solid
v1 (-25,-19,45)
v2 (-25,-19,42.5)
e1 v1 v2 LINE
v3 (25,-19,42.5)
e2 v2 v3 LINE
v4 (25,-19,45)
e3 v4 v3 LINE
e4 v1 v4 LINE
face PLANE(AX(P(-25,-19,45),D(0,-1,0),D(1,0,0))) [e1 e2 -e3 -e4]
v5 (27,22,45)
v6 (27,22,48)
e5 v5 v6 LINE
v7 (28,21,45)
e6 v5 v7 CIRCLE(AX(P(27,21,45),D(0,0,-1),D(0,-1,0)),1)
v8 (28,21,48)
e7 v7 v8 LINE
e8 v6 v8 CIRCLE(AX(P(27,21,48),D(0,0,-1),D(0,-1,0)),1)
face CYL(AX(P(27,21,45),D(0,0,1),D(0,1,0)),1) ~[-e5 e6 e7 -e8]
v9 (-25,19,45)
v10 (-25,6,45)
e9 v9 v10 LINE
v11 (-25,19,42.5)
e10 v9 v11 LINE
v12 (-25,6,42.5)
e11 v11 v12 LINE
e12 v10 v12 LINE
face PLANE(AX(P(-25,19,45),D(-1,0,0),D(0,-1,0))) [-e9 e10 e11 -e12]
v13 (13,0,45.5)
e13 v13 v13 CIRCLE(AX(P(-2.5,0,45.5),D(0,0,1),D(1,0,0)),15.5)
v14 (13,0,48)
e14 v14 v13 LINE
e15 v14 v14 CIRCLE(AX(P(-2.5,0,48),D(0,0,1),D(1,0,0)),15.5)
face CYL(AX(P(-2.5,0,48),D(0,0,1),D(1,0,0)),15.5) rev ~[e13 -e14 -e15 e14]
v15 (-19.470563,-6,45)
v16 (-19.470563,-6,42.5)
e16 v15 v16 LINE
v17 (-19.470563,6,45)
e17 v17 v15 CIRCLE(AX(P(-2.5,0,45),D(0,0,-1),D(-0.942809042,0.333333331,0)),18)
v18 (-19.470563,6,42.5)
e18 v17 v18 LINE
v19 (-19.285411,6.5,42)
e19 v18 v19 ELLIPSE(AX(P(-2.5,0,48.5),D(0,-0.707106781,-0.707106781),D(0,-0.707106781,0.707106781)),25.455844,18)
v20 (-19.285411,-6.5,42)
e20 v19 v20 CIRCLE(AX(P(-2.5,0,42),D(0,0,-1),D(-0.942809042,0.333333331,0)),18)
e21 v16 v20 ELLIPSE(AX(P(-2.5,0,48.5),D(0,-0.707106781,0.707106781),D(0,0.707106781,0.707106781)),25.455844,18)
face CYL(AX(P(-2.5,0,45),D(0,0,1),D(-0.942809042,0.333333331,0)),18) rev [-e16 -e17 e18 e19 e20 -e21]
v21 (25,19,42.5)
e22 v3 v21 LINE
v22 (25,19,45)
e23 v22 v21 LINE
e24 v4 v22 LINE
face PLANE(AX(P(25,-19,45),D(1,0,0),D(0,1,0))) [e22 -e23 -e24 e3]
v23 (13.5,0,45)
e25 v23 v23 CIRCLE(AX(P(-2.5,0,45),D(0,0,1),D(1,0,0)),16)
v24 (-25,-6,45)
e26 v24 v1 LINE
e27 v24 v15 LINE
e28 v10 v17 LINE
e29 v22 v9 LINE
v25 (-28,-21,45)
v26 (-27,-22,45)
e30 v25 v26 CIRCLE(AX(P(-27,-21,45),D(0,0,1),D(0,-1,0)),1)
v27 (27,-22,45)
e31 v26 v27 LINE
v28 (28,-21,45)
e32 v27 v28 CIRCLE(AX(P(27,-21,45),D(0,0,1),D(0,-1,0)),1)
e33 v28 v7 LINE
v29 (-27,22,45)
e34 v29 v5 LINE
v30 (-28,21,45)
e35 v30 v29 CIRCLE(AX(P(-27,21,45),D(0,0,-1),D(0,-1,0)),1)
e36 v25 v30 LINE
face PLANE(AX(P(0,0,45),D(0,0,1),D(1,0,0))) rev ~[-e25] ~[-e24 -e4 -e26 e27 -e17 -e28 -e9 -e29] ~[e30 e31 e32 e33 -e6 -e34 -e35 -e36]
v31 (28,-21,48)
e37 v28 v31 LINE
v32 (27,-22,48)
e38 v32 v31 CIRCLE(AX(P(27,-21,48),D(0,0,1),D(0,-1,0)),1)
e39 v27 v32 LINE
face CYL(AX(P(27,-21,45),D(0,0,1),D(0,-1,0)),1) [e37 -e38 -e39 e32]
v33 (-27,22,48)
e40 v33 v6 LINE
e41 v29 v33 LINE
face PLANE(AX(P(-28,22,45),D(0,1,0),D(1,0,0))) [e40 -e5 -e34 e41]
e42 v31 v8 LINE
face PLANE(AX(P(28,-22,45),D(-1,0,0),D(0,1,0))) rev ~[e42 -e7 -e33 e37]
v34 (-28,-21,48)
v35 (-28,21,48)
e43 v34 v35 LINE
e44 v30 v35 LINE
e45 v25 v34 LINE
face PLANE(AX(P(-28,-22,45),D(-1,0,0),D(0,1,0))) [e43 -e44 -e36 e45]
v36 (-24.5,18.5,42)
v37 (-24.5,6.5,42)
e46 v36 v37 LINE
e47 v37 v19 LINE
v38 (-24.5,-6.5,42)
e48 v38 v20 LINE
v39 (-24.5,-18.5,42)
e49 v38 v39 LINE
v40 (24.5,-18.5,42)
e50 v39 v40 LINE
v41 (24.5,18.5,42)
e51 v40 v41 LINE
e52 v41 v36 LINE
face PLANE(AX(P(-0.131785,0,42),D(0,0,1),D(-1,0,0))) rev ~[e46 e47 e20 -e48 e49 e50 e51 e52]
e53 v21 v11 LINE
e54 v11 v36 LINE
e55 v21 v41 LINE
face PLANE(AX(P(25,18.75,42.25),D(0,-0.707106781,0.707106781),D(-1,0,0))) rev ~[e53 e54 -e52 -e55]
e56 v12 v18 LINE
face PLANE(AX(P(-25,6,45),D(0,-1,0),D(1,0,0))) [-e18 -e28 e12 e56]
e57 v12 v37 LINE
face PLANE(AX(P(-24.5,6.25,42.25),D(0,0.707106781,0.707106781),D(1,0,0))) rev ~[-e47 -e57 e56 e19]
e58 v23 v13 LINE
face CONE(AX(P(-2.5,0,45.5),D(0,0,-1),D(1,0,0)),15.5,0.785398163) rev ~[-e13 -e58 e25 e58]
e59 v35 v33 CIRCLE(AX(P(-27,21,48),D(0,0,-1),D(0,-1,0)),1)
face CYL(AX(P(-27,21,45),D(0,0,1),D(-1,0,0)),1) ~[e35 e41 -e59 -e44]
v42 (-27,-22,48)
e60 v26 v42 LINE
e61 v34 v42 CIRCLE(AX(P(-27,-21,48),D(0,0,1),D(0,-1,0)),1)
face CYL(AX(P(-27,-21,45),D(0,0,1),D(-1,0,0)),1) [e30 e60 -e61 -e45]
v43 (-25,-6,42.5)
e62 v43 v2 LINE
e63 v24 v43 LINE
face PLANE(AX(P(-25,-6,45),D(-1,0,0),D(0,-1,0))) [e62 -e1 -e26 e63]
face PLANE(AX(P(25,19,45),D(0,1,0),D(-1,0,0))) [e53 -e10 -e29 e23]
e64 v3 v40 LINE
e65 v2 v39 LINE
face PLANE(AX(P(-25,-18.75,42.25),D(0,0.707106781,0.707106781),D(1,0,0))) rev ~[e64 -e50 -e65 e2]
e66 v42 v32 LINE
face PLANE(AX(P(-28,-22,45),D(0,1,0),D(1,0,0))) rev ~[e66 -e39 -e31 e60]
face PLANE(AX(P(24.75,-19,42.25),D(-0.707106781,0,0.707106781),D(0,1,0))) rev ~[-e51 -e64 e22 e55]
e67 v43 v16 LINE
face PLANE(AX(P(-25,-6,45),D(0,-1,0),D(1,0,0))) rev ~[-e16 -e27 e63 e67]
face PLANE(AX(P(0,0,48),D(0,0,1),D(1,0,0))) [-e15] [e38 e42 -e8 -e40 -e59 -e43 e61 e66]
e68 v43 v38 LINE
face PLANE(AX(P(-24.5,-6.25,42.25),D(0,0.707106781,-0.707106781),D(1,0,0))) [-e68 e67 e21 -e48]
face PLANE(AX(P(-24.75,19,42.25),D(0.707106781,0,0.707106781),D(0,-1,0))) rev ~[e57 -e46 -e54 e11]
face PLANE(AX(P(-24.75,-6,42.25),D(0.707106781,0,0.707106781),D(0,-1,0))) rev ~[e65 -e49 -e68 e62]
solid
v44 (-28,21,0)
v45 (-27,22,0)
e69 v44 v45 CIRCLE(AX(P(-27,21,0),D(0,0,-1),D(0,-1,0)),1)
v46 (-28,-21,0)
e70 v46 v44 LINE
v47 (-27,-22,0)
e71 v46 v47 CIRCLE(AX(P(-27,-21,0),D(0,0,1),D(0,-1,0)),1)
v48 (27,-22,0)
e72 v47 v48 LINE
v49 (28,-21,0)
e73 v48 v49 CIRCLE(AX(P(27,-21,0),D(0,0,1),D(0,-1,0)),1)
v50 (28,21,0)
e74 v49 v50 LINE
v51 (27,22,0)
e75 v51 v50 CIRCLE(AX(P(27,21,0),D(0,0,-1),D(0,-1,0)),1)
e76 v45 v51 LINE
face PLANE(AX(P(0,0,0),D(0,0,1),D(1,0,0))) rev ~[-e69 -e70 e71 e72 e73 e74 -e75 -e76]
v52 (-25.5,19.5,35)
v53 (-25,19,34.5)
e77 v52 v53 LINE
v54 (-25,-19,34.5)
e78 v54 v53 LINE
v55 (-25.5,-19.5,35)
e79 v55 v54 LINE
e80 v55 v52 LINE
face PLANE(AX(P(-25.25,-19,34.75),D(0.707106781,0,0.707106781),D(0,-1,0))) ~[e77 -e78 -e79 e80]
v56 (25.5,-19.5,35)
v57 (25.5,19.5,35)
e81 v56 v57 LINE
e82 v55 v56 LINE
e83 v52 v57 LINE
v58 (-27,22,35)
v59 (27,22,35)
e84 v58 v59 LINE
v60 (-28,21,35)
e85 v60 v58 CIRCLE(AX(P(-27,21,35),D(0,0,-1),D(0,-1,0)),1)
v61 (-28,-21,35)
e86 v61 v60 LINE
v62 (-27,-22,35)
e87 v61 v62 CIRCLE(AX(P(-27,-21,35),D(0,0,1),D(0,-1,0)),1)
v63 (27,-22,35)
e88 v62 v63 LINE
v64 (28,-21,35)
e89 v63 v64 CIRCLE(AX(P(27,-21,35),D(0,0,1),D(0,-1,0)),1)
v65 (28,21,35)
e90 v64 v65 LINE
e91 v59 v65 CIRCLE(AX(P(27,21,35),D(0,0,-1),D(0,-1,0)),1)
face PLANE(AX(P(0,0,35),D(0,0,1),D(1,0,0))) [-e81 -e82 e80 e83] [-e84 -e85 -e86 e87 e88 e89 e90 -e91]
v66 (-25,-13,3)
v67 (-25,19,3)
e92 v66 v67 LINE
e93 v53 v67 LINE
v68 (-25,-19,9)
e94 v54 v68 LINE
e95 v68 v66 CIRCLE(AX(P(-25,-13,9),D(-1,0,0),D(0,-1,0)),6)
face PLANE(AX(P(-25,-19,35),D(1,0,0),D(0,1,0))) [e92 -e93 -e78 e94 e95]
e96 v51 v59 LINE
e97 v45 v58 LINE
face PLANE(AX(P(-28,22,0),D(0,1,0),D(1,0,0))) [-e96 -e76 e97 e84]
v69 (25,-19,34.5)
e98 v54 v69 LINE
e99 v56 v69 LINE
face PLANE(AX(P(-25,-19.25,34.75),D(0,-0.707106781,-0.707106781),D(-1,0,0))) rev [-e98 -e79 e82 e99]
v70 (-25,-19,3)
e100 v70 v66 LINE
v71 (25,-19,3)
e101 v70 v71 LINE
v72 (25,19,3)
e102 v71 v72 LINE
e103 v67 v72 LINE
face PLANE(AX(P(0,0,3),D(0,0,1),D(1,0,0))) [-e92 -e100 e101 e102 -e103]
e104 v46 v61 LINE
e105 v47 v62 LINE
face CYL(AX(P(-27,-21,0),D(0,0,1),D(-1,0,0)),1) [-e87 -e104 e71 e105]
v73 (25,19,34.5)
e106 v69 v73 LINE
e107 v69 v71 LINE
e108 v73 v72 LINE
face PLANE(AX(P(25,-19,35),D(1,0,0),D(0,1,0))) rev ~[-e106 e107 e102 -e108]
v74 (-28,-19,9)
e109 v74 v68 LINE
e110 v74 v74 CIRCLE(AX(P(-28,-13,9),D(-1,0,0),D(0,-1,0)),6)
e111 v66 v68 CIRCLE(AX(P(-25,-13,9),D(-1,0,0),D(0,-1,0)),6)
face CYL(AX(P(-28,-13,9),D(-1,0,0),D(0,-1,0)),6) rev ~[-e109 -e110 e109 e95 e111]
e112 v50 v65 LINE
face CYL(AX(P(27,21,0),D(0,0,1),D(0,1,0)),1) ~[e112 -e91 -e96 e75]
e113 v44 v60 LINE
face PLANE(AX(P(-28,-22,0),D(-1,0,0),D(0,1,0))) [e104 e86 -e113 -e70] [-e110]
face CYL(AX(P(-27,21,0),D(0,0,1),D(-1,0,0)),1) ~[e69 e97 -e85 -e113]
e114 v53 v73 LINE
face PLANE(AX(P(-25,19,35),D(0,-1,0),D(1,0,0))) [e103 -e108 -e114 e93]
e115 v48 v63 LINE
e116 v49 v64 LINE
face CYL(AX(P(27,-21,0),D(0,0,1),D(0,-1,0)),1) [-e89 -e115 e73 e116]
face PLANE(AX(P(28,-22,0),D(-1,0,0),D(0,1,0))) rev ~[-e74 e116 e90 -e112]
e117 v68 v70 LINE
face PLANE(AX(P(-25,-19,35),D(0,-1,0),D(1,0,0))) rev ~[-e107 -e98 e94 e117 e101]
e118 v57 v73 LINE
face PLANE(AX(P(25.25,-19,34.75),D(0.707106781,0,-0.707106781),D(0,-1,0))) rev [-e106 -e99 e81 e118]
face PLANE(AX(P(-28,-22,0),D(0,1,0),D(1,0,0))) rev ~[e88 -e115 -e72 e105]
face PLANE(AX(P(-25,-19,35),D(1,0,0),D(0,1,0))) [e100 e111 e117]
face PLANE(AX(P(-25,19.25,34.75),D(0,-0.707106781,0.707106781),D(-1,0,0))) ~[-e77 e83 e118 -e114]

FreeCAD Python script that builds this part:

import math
import FreeCAD as App
import Part
import Sketcher
from FreeCAD import Vector
Q = App.Units.Quantity


def edges_at(feature, points):
    """Names of the edges that pass closest to the given points."""
    edges = feature.Shape.Edges
    near = lambda p: min(range(len(edges)), key=lambda i: edges[i].distToShape(Part.Vertex(*p))[0])
    return sorted({f"Edge{near(p) + 1}" for p in points})

doc = App.newDocument("Part")
params = doc.addObject("Spreadsheet::Sheet", "Params")
for row, (alias, value) in enumerate([
    ("sketch1_width", "56 mm"),
    ("sketch1_height", "44 mm"),
    ("pad1_length", "35 mm"),
    ("sketch2_width", "50 mm"),
    ("sketch2_height", "38 mm"),
    ("pocket1_length", "32 mm"),
    ("chamfer_size", "0.5 mm"),
    ("sketch3_diameter", "12 mm"),
    ("pocket2_length", "3.5 mm"),
    ("fillet_radius", "1 mm"),
    ("sketch4_width", "56 mm"),
    ("sketch4_height", "44 mm"),
    ("pad2_length", "3 mm"),
    ("sketch5_radius", "18 mm"),
    ("sketch5_width", "50 mm"),
    ("sketch5_height", "13 mm"),
    ("sketch5_height2", "38 mm"),
    ("pad3_length", "3 mm"),
    ("chamfer2_size", "0.5 mm"),
    ("sketch6_diameter", "31 mm"),
    ("chamfer3_size", "0.5 mm"),
    ("chamfer4_size", "0.5 mm"),
    ("fillet2_radius", "1 mm"),
], start=1):
    params.set(f"A{row}", alias)
    params.set(f"B{row}", "=" + value)
    params.setAlias(f"B{row}", alias)

body = doc.addObject("PartDesign::Body", "Body")

# Sketch on XY plane
sketch1 = body.newObject("Sketcher::SketchObject", "Sketch")
sketch1.AttachmentSupport = (doc.getObject("XY_Plane"), [""])
sketch1.MapMode = "FlatFace"
sketch1.addGeometry([
    Part.LineSegment(Vector(-28, 22, 0), Vector(-28, -22, 0)),
    Part.LineSegment(Vector(-28, -22, 0), Vector(28, -22, 0)),
    Part.LineSegment(Vector(28, -22, 0), Vector(28, 22, 0)),
    Part.LineSegment(Vector(28, 22, 0), Vector(-28, 22, 0)),
], False)
sketch1.addConstraint([
    Sketcher.Constraint("Coincident", 0, 2, 1, 1),
    Sketcher.Constraint("Coincident", 1, 2, 2, 1),
    Sketcher.Constraint("Coincident", 2, 2, 3, 1),
    Sketcher.Constraint("Coincident", 3, 2, 0, 1),
    Sketcher.Constraint("Vertical", 0),
    Sketcher.Constraint("Horizontal", 1),
    Sketcher.Constraint("Vertical", 2),
    Sketcher.Constraint("Horizontal", 3),
    Sketcher.Constraint("Symmetric", 0, 2, 2, 2, -1, 1),
    Sketcher.Constraint("DistanceX", 1, 1, 1, 2, Q("56 mm")),
    Sketcher.Constraint("DistanceY", 0, 2, 0, 1, Q("44 mm")),
])
sketch1.setExpression("Constraints[9]", "Params.sketch1_width")
sketch1.setExpression("Constraints[10]", "Params.sketch1_height")
pad1 = body.newObject("PartDesign::Pad", "Pad")
pad1.Profile = sketch1
pad1.setExpression("Length", "Params.pad1_length")

# Sketch on XY plane
sketch2 = body.newObject("Sketcher::SketchObject", "Sketch001")
sketch2.AttachmentSupport = (doc.getObject("XY_Plane"), [""])
sketch2.MapMode = "FlatFace"
sketch2.AttachmentOffset = App.Placement(Vector(0, 0, 35), App.Rotation())
sketch2.addGeometry([
    Part.LineSegment(Vector(-25, 19, 0), Vector(-25, -19, 0)),
    Part.LineSegment(Vector(-25, -19, 0), Vector(25, -19, 0)),
    Part.LineSegment(Vector(25, -19, 0), Vector(25, 19, 0)),
    Part.LineSegment(Vector(25, 19, 0), Vector(-25, 19, 0)),
], False)
sketch2.addConstraint([
    Sketcher.Constraint("Coincident", 0, 2, 1, 1),
    Sketcher.Constraint("Coincident", 1, 2, 2, 1),
    Sketcher.Constraint("Coincident", 2, 2, 3, 1),
    Sketcher.Constraint("Coincident", 3, 2, 0, 1),
    Sketcher.Constraint("Vertical", 0),
    Sketcher.Constraint("Horizontal", 1),
    Sketcher.Constraint("Vertical", 2),
    Sketcher.Constraint("Horizontal", 3),
    Sketcher.Constraint("Symmetric", 0, 2, 2, 2, -1, 1),
    Sketcher.Constraint("DistanceX", 1, 1, 1, 2, Q("50 mm")),
    Sketcher.Constraint("DistanceY", 0, 2, 0, 1, Q("38 mm")),
])
sketch2.setExpression("Constraints[9]", "Params.sketch2_width")
sketch2.setExpression("Constraints[10]", "Params.sketch2_height")
pocket1 = body.newObject("PartDesign::Pocket", "Pocket")
pocket1.Profile = sketch2
pocket1.setExpression("Length", "Params.pocket1_length")
doc.recompute()

chamfer = body.newObject("PartDesign::Chamfer", "Chamfer")
chamfer.Base = (pocket1, edges_at(pocket1, [
    (0, 19, 35),
    (-25, 0, 35),
    (0, -19, 35),
    (25, 0, 35),
]))
chamfer.setExpression("Size", "Params.chamfer_size")

# Sketch on YZ plane
sketch3 = body.newObject("Sketcher::SketchObject", "Sketch002")
sketch3.AttachmentSupport = (doc.getObject("YZ_Plane"), [""])
sketch3.MapMode = "FlatFace"
sketch3.AttachmentOffset = App.Placement(Vector(0, 0, -28), App.Rotation())
sketch3.addGeometry(Part.Circle(Vector(-13, 9, 0), Vector(0, 0, 1), 6), False)
sketch3.addConstraint([
    Sketcher.Constraint("Diameter", 0, Q("12 mm")),
    Sketcher.Constraint("DistanceX", 0, 3, -1, 1, Q("13 mm")),
    Sketcher.Constraint("DistanceY", -1, 1, 0, 3, Q("9 mm")),
])
sketch3.setExpression("Constraints[0]", "Params.sketch3_diameter")
pocket2 = body.newObject("PartDesign::Pocket", "Pocket001")
pocket2.Profile = sketch3
pocket2.setExpression("Length", "Params.pocket2_length")
pocket2.Reversed = True
doc.recompute()

fillet = body.newObject("PartDesign::Fillet", "Fillet")
fillet.Base = (pocket2, edges_at(pocket2, [
    (-28, 22, 17.5),
    (28, 22, 17.5),
    (28, -22, 17.5),
    (-28, -22, 17.5),
]))
fillet.setExpression("Radius", "Params.fillet_radius")
body2 = doc.addObject("PartDesign::Body", "Body001")

# Sketch on XY plane
sketch4 = body2.newObject("Sketcher::SketchObject", "Sketch003")
sketch4.AttachmentSupport = (doc.getObject("XY_Plane001"), [""])
sketch4.MapMode = "FlatFace"
sketch4.AttachmentOffset = App.Placement(Vector(0, 0, 45), App.Rotation())
sketch4.addGeometry([
    Part.LineSegment(Vector(-28, 22, 0), Vector(-28, -22, 0)),
    Part.LineSegment(Vector(-28, -22, 0), Vector(28, -22, 0)),
    Part.LineSegment(Vector(28, -22, 0), Vector(28, 22, 0)),
    Part.LineSegment(Vector(28, 22, 0), Vector(-28, 22, 0)),
], False)
sketch4.addConstraint([
    Sketcher.Constraint("Coincident", 0, 2, 1, 1),
    Sketcher.Constraint("Coincident", 1, 2, 2, 1),
    Sketcher.Constraint("Coincident", 2, 2, 3, 1),
    Sketcher.Constraint("Coincident", 3, 2, 0, 1),
    Sketcher.Constraint("Vertical", 0),
    Sketcher.Constraint("Horizontal", 1),
    Sketcher.Constraint("Vertical", 2),
    Sketcher.Constraint("Horizontal", 3),
    Sketcher.Constraint("Symmetric", 0, 2, 2, 2, -1, 1),
    Sketcher.Constraint("DistanceX", 1, 1, 1, 2, Q("56 mm")),
    Sketcher.Constraint("DistanceY", 0, 2, 0, 1, Q("44 mm")),
])
sketch4.setExpression("Constraints[9]", "Params.sketch4_width")
sketch4.setExpression("Constraints[10]", "Params.sketch4_height")
pad2 = body2.newObject("PartDesign::Pad", "Pad001")
pad2.Profile = sketch4
pad2.setExpression("Length", "Params.pad2_length")

# Sketch on XY plane
sketch5 = body2.newObject("Sketcher::SketchObject", "Sketch004")
sketch5.AttachmentSupport = (doc.getObject("XY_Plane001"), [""])
sketch5.MapMode = "FlatFace"
sketch5.AttachmentOffset = App.Placement(Vector(0, 0, 45), App.Rotation())
sketch5.addGeometry([
    Part.LineSegment(Vector(25, -19, 0), Vector(-25, -19, 0)),  # 0
    Part.LineSegment(Vector(-25, -19, 0), Vector(-25, -6, 0)),  # 1
    Part.LineSegment(Vector(-25, -6, 0), Vector(-19.470563, -6, 0)),  # 2
    Part.ArcOfCircle(Part.Circle(Vector(-2.5, 0, 0), Vector(0, 0, 1), 18), math.radians(-160.52878), math.radians(160.52878)),  # 3
    Part.LineSegment(Vector(-19.470563, 6, 0), Vector(-25, 6, 0)),  # 4
    Part.LineSegment(Vector(-25, 6, 0), Vector(-25, 19, 0)),  # 5
    Part.LineSegment(Vector(-25, 19, 0), Vector(25, 19, 0)),  # 6
    Part.LineSegment(Vector(25, 19, 0), Vector(25, -19, 0)),  # 7
], False)
sketch5.addConstraint([
    Sketcher.Constraint("Coincident", 0, 2, 1, 1),
    Sketcher.Constraint("Coincident", 1, 2, 2, 1),
    Sketcher.Constraint("Coincident", 2, 2, 3, 1),
    Sketcher.Constraint("Coincident", 3, 2, 4, 1),
    Sketcher.Constraint("Coincident", 4, 2, 5, 1),
    Sketcher.Constraint("Coincident", 5, 2, 6, 1),
    Sketcher.Constraint("Coincident", 6, 2, 7, 1),
    Sketcher.Constraint("Coincident", 7, 2, 0, 1),
    Sketcher.Constraint("Horizontal", 0),
    Sketcher.Constraint("Vertical", 1),
    Sketcher.Constraint("Horizontal", 2),
    Sketcher.Constraint("Horizontal", 4),
    Sketcher.Constraint("Vertical", 5),
    Sketcher.Constraint("Horizontal", 6),
    Sketcher.Constraint("Vertical", 7),
    Sketcher.Constraint("Symmetric", 0, 2, 6, 2, -1, 1),
    Sketcher.Constraint("Symmetric", 2, 2, 3, 2, -1),
    Sketcher.Constraint("Vertical", 1, 2, 4, 2),
    Sketcher.Constraint("Radius", 3, Q("18 mm")),
    Sketcher.Constraint("DistanceX", 0, 2, 0, 1, Q("50 mm")),
    Sketcher.Constraint("DistanceY", 1, 1, 1, 2, Q("13 mm")),
    Sketcher.Constraint("DistanceY", 7, 2, 7, 1, Q("38 mm")),
    Sketcher.Constraint("DistanceX", 3, 3, -1, 1, Q("2.5 mm")),
])
sketch5.setExpression("Constraints[18]", "Params.sketch5_radius")
sketch5.setExpression("Constraints[19]", "Params.sketch5_width")
sketch5.setExpression("Constraints[20]", "Params.sketch5_height")
sketch5.setExpression("Constraints[21]", "Params.sketch5_height2")
pad3 = body2.newObject("PartDesign::Pad", "Pad002")
pad3.Profile = sketch5
pad3.setExpression("Length", "Params.pad3_length")
pad3.Reversed = True
doc.recompute()

chamfer2 = body2.newObject("PartDesign::Chamfer", "Chamfer001")
chamfer2.Base = (pad3, edges_at(pad3, [
    (0, -19, 42),
    (-25, -12.5, 42),
    (-25, 12.5, 42),
    (0, 19, 42),
    (25, 0, 42),
]))
chamfer2.setExpression("Size", "Params.chamfer2_size")

# Sketch on XY plane
sketch6 = body2.newObject("Sketcher::SketchObject", "Sketch005")
sketch6.AttachmentSupport = (doc.getObject("XY_Plane001"), [""])
sketch6.MapMode = "FlatFace"
sketch6.AttachmentOffset = App.Placement(Vector(0, 0, 48), App.Rotation())
sketch6.addGeometry(Part.Circle(Vector(-2.5, 0, 0), Vector(0, 0, 1), 15.5), False)
sketch6.addConstraint([
    Sketcher.Constraint("PointOnObject", 0, 3, -1),
    Sketcher.Constraint("Diameter", 0, Q("31 mm")),
    Sketcher.Constraint("DistanceX", 0, 3, -1, 1, Q("2.5 mm")),
])
sketch6.setExpression("Constraints[1]", "Params.sketch6_diameter")
pocket3 = body2.newObject("PartDesign::Pocket", "Pocket002")
pocket3.Profile = sketch6
pocket3.Type = "ThroughAll"
doc.recompute()

chamfer3 = body2.newObject("PartDesign::Chamfer", "Chamfer002")
chamfer3.Base = (pocket3, edges_at(pocket3, [(-18, 0, 45)]))
chamfer3.setExpression("Size", "Params.chamfer3_size")
doc.recompute()

chamfer4 = body2.newObject("PartDesign::Chamfer", "Chamfer003")
chamfer4.Base = (chamfer3, edges_at(chamfer3, [(-21.985, 6, 42), (-21.985, -6, 42)]))
chamfer4.setExpression("Size", "Params.chamfer4_size")
doc.recompute()

fillet2 = body2.newObject("PartDesign::Fillet", "Fillet001")
fillet2.Base = (chamfer4, edges_at(chamfer4, [
    (28, -22, 46.5),
    (28, 22, 46.5),
    (-28, 22, 46.5),
    (-28, -22, 46.5),
]))
fillet2.setExpression("Radius", "Params.fillet2_radius")

doc.recompute()
